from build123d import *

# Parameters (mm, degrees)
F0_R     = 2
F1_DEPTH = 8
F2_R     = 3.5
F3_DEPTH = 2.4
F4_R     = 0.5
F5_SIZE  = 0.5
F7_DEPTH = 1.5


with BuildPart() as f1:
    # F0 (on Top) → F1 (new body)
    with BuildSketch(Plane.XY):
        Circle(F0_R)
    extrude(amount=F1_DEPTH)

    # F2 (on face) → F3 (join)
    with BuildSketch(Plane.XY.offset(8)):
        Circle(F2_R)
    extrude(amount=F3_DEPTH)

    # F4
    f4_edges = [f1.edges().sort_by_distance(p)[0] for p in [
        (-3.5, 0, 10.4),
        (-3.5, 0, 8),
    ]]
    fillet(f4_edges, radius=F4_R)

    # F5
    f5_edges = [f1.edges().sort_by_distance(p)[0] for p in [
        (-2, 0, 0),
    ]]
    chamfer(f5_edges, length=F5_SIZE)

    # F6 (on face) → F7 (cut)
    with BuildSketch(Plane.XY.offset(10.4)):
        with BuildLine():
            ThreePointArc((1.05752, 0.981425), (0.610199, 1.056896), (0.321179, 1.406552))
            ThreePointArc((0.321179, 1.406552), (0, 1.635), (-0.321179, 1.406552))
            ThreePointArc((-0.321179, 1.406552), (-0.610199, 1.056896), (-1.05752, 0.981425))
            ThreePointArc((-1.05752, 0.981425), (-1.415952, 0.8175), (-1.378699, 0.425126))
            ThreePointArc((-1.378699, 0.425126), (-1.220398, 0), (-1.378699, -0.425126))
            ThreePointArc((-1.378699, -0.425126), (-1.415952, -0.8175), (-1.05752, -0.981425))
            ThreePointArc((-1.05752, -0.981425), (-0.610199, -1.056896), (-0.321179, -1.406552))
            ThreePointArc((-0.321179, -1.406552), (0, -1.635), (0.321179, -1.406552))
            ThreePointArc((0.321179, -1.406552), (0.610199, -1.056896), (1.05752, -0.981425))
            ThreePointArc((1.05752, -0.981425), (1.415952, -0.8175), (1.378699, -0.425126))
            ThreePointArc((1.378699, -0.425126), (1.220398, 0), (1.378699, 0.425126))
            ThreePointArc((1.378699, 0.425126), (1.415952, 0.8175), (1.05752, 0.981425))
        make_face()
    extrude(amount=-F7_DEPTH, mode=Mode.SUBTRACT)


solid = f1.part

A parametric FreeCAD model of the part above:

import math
import FreeCAD as App
import Part
import Sketcher

V = App.Vector
Q = App.Units.Quantity


def edges_at(feature, points):
    """Names of the edges that pass closest to the given points."""
    edges = feature.Shape.Edges
    near = lambda p: min(range(len(edges)), key=lambda i: edges[i].distToShape(Part.Vertex(*p))[0])
    return sorted({f"Edge{near(p) + 1}" for p in points})

doc = App.newDocument("Part")
body = doc.addObject("PartDesign::Body", "Body")

# Sketch on XY plane
sketch1 = body.newObject("Sketcher::SketchObject", "Sketch")
sketch1.AttachmentSupport = (doc.getObject("XY_Plane"), [""])
sketch1.MapMode = "FlatFace"
sketch1.addGeometry(Part.Circle(V(0, 0, 0), V(0, 0, 1), 2), False)
sketch1.addConstraint([
    Sketcher.Constraint("Coincident", 0, 3, -1, 1),
    Sketcher.Constraint("Diameter", 0, Q("4 mm")),
])
pad1 = body.newObject("PartDesign::Pad", "Pad")
pad1.Profile = sketch1
pad1.Length = 8

# Sketch on XY plane
sketch2 = body.newObject("Sketcher::SketchObject", "Sketch001")
sketch2.AttachmentSupport = (doc.getObject("XY_Plane"), [""])
sketch2.MapMode = "FlatFace"
sketch2.AttachmentOffset = App.Placement(V(0, 0, 8), App.Rotation())
sketch2.addGeometry(Part.Circle(V(0, 0, 0), V(0, 0, 1), 3.5), False)
sketch2.addConstraint([
    Sketcher.Constraint("Coincident", 0, 3, -1, 1),
    Sketcher.Constraint("Diameter", 0, Q("7 mm")),
])
pad2 = body.newObject("PartDesign::Pad", "Pad001")
pad2.Profile = sketch2
pad2.Length = 2.4
doc.recompute()

fillet = body.newObject("PartDesign::Fillet", "Fillet")
fillet.Base = (pad2, edges_at(pad2, [(-3.5, 0, 10.4), (-3.5, 0, 8)]))
fillet.Radius = 0.5
doc.recompute()

chamfer = body.newObject("PartDesign::Chamfer", "Chamfer")
chamfer.Base = (fillet, edges_at(fillet, [(-2, 0, 0)]))
chamfer.Size = 0.5

# Sketch on XY plane
sketch3 = body.newObject("Sketcher::SketchObject", "Sketch002")
sketch3.AttachmentSupport = (doc.getObject("XY_Plane"), [""])
sketch3.MapMode = "FlatFace"
sketch3.AttachmentOffset = App.Placement(V(0, 0, 10.4), App.Rotation())
sketch3.addGeometry([
    Part.ArcOfCircle(Part.Circle(V(0.94, 1.62, 0), V(0, 0, 1), 0.65), math.radians(-161), math.radians(-79)),  # 0
    Part.ArcOfCircle(Part.Circle(V(0, 1.3, 0), V(0, 0, 1), 0.34), math.radians(19), math.radians(161)),  # 1
    Part.ArcOfCircle(Part.Circle(V(-0.94, 1.62, 0), V(0, 0, 1), 0.65), math.radians(-101), math.radians(-19)),  # 2
    Part.ArcOfCircle(Part.Circle(V(-1.12, 0.65, 0), V(0, 0, 1), 0.34), math.radians(79), math.radians(221)),  # 3
    Part.ArcOfCircle(Part.Circle(V(-1.87, 0, 0), V(0, 0, 1), 0.65), math.radians(-41), math.radians(41)),  # 4
    Part.ArcOfCircle(Part.Circle(V(-1.12, -0.65, 0), V(0, 0, 1), 0.34), math.radians(139), math.radians(281)),  # 5
    Part.ArcOfCircle(Part.Circle(V(-0.94, -1.62, 0), V(0, 0, 1), 0.65), math.radians(19), math.radians(101)),  # 6
    Part.ArcOfCircle(Part.Circle(V(0, -1.3, 0), V(0, 0, 1), 0.34), math.radians(-161), math.radians(-19)),  # 7
    Part.ArcOfCircle(Part.Circle(V(0.94, -1.62, 0), V(0, 0, 1), 0.65), math.radians(79), math.radians(161)),  # 8
    Part.ArcOfCircle(Part.Circle(V(1.12, -0.65, 0), V(0, 0, 1), 0.34), math.radians(-101), math.radians(41)),  # 9
    Part.ArcOfCircle(Part.Circle(V(1.87, 0, 0), V(0, 0, 1), 0.65), math.radians(139), math.radians(221)),  # 10
    Part.ArcOfCircle(Part.Circle(V(1.12, 0.65, 0), V(0, 0, 1), 0.34), math.radians(-41), math.radians(101)),  # 11
], False)
sketch3.addConstraint([
    Sketcher.Constraint("Tangent", 0, 1, 1, 1),
    Sketcher.Constraint("Tangent", 1, 2, 2, 2),
    Sketcher.Constraint("Coincident", 2, 1, 3, 1),
    Sketcher.Constraint("Coincident", 3, 2, 4, 2),
    Sketcher.Constraint("Coincident", 4, 1, 5, 1),
    Sketcher.Constraint("Coincident", 5, 2, 6, 2),
    Sketcher.Constraint("Tangent", 6, 1, 7, 1),
    Sketcher.Constraint("Tangent", 7, 2, 8, 2),
    Sketcher.Constraint("Coincident", 8, 1, 9, 1),
    Sketcher.Constraint("Coincident", 9, 2, 10, 2),
    Sketcher.Constraint("Coincident", 10, 1, 11, 1),
    Sketcher.Constraint("Coincident", 11, 2, 0, 2),
    Sketcher.Constraint("Equal", 0, 2),
    Sketcher.Constraint("Equal", 1, 3),
    Sketcher.Constraint("Equal", 3, 5),
    Sketcher.Constraint("Equal", 2, 6),
    Sketcher.Constraint("Equal", 5, 7),
    Sketcher.Constraint("Equal", 6, 8),
    Sketcher.Constraint("Equal", 7, 9),
    Sketcher.Constraint("Equal", 4, 10),
    Sketcher.Constraint("Equal", 9, 11),
    Sketcher.Constraint("Symmetric", 0, 3, 6, 3, -1, 1),
    Sketcher.Constraint("Symmetric", 2, 3, 8, 3, -1, 1),
    Sketcher.Constraint("Symmetric", 4, 3, 10, 3, -1, 1),
    Sketcher.Constraint("Symmetric", 0, 3, 2, 3, -2),
    Sketcher.Constraint("Symmetric", 4, 1, 9, 2, -2),
    Sketcher.Constraint("Horizontal", 5, 2, 8, 1),
    Sketcher.Constraint("Horizontal", 3, 2, 10, 1),
    Sketcher.Constraint("Horizontal", 2, 1, 11, 2),
    Sketcher.Constraint("Vertical", 3, 2, 4, 1),
    Sketcher.Constraint("Vertical", 2, 1, 5, 2),
    Sketcher.Constraint("Radius", 1, Q("0.34 mm")),
    Sketcher.Constraint("Radius", 4, Q("0.65 mm")),
    Sketcher.Constraint("DistanceY", 7, 3, 1, 3, Q("2.590001 mm")),
    Sketcher.Constraint("Radius", 0, Q("0.650003 mm")),
    Sketcher.Constraint("DistanceY", 5, 3, 3, 3, Q("1.295 mm")),
    Sketcher.Constraint("DistanceX", -1, 1, 0, 3, Q("0.935201 mm")),
    Sketcher.Constraint("DistanceX", 3, 2, -1, 1, Q("1.378699 mm")),
    Sketcher.Constraint("DistanceY", 3, 2, 2, 1, Q("0.556299 mm")),
])
pocket1 = body.newObject("PartDesign::Pocket", "Pocket")
pocket1.Profile = sketch3
pocket1.Length = 1.5

doc.recompute()
